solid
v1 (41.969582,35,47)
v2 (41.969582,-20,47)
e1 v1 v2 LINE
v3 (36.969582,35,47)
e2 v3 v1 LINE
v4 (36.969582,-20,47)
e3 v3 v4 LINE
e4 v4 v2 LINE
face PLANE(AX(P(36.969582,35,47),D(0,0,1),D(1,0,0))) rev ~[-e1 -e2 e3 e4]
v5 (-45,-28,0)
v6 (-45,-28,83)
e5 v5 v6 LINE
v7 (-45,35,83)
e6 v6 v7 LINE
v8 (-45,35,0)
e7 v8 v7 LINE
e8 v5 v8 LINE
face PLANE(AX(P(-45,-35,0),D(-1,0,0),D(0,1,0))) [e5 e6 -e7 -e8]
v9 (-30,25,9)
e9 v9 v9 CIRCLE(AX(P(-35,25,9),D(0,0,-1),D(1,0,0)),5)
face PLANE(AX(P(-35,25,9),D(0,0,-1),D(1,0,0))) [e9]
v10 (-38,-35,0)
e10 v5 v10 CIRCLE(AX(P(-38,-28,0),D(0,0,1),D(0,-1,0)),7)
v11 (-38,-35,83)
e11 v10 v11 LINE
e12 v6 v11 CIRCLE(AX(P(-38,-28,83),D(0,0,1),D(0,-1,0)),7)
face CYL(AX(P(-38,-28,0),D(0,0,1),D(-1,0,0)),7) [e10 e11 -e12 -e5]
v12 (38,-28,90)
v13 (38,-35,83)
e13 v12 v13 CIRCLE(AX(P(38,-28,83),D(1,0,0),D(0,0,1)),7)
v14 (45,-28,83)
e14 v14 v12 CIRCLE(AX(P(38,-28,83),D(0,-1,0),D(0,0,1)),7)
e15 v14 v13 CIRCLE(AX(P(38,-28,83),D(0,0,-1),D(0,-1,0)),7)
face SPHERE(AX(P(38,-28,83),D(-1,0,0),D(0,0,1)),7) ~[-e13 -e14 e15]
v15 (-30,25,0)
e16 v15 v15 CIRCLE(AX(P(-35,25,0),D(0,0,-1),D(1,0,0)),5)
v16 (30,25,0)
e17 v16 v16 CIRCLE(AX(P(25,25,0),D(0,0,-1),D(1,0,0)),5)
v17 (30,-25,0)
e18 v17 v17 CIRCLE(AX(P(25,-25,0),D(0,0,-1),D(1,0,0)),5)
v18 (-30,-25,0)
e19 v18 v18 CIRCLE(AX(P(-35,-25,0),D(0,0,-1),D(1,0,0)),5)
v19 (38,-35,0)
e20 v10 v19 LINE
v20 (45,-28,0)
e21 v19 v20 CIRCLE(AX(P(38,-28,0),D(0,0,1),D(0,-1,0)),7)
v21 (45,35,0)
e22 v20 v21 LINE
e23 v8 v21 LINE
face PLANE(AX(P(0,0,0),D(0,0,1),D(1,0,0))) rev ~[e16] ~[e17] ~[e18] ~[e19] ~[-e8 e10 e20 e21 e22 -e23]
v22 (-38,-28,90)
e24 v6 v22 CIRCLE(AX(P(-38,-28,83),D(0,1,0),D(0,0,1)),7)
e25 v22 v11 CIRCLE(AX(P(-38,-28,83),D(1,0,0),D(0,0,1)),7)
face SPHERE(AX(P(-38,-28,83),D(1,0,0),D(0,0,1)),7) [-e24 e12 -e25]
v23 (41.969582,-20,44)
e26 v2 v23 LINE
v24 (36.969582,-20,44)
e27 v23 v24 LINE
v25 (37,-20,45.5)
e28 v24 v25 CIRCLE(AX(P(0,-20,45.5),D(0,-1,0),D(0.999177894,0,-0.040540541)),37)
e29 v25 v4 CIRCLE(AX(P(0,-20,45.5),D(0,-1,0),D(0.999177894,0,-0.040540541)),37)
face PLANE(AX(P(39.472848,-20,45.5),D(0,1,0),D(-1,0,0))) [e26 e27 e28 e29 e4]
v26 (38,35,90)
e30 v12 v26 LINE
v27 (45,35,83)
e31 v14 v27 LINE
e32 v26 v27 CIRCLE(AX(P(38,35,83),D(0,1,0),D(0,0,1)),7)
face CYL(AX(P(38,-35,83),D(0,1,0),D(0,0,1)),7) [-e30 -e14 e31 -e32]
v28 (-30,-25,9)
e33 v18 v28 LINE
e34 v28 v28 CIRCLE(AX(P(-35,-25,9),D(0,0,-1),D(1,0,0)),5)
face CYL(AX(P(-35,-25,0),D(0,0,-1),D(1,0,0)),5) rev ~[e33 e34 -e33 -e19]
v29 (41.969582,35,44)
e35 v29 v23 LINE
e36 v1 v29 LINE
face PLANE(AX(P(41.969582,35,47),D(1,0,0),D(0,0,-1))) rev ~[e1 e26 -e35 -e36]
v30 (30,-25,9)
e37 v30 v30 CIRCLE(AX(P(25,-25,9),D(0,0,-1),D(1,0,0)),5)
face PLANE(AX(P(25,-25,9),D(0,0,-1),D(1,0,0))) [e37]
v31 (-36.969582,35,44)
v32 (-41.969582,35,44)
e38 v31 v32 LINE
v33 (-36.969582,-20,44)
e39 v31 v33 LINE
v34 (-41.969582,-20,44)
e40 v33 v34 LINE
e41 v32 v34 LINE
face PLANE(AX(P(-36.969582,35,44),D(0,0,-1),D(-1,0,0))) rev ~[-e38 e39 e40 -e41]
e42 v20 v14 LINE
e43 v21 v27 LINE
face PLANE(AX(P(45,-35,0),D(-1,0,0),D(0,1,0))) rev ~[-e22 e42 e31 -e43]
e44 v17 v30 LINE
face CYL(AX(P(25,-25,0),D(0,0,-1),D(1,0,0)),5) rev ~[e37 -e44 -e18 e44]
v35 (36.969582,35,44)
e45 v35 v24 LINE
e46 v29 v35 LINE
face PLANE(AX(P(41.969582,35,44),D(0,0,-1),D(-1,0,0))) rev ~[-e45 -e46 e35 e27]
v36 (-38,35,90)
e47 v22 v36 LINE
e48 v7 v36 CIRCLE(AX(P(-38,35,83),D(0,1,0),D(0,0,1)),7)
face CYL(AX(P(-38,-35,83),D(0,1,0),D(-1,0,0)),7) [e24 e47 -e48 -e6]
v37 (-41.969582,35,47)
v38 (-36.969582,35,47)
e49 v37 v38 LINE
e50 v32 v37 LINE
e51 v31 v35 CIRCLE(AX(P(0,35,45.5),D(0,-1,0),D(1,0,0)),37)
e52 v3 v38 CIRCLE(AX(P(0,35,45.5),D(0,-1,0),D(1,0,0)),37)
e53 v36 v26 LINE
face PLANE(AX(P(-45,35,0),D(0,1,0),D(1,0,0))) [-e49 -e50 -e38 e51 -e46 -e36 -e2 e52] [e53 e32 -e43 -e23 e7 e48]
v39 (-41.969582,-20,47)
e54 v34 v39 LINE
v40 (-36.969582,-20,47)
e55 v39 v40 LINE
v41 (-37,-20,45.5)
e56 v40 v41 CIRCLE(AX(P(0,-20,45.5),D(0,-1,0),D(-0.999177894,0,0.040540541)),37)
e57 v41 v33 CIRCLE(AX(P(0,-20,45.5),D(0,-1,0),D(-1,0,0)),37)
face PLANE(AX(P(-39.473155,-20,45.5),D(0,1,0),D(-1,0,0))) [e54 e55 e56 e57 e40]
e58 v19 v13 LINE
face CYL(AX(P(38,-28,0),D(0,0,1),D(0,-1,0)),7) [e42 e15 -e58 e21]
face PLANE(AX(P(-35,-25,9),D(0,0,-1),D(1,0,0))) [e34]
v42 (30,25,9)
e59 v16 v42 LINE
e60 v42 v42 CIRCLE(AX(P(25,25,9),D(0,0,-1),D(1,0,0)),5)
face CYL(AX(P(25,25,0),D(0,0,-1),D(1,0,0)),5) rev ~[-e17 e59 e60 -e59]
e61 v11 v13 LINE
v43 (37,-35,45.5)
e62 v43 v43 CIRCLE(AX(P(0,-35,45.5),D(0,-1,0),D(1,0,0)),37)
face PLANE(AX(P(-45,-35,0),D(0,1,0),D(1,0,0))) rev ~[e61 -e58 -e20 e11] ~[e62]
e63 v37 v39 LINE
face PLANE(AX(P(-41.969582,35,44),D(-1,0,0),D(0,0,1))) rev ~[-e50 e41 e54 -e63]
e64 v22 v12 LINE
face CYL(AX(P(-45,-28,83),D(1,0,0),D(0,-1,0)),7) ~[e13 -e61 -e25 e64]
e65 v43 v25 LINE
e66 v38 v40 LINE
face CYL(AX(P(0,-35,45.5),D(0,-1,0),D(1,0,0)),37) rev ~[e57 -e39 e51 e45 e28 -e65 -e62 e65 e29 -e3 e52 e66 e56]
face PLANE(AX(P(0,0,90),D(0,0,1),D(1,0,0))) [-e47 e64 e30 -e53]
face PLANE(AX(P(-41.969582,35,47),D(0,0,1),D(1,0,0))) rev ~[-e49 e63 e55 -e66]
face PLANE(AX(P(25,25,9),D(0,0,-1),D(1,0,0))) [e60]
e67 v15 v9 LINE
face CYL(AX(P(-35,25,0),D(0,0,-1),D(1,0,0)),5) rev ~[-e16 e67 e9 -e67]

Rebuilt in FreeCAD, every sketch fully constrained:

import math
import FreeCAD as App
import Part
import Sketcher


def edges_at(feature, points):
    """Names of the edges that pass closest to the given points."""
    edges = feature.Shape.Edges
    near = lambda p: min(range(len(edges)), key=lambda i: edges[i].distToShape(Part.Vertex(*p))[0])
    return sorted({f"Edge{near(p) + 1}" for p in points})

doc = App.newDocument("Part")
body = doc.addObject("PartDesign::Body", "Body")

sketch1 = body.newObject("Sketcher::SketchObject", "Sketch")
sketch1.AttachmentSupport = (doc.getObject("XY_Plane"), [""])
sketch1.MapMode = "FlatFace"
sketch1.addGeometry(Part.LineSegment(App.Vector(-45, 35, 0), App.Vector(-45, -35, 0)), False)
sketch1.addGeometry(Part.LineSegment(App.Vector(-45, -35, 0), App.Vector(45, -35, 0)), False)
sketch1.addGeometry(Part.LineSegment(App.Vector(45, -35, 0), App.Vector(45, 35, 0)), False)
sketch1.addGeometry(Part.LineSegment(App.Vector(45, 35, 0), App.Vector(-45, 35, 0)), False)
sketch1.addConstraint(Sketcher.Constraint("Coincident", 0, 2, 1, 1))
sketch1.addConstraint(Sketcher.Constraint("Coincident", 1, 2, 2, 1))
sketch1.addConstraint(Sketcher.Constraint("Coincident", 2, 2, 3, 1))
sketch1.addConstraint(Sketcher.Constraint("Coincident", 3, 2, 0, 1))
sketch1.addConstraint(Sketcher.Constraint("Vertical", 0))
sketch1.addConstraint(Sketcher.Constraint("Horizontal", 1))
sketch1.addConstraint(Sketcher.Constraint("Vertical", 2))
sketch1.addConstraint(Sketcher.Constraint("Horizontal", 3))
sketch1.addConstraint(Sketcher.Constraint("Symmetric", 0, 2, 2, 2, -1, 1))
sketch1.addConstraint(Sketcher.Constraint("DistanceX", 1, 1, 1, 2, 90.0))
sketch1.addConstraint(Sketcher.Constraint("DistanceY", 0, 2, 0, 1, 70.0))
pad1 = body.newObject("PartDesign::Pad", "Pad")
pad1.Profile = sketch1
pad1.Length = 90

sketch2 = body.newObject("Sketcher::SketchObject", "Sketch001")
sketch2.AttachmentSupport = (doc.getObject("XZ_Plane"), [""])
sketch2.MapMode = "FlatFace"
sketch2.AttachmentOffset = App.Placement(App.Vector(0, 0, 35), App.Rotation())
sketch2.addGeometry(Part.Circle(App.Vector(0, 45.5, 0), App.Vector(0, 0, 1), 37), False)
sketch2.addConstraint(Sketcher.Constraint("PointOnObject", 0, 3, -2))
sketch2.addConstraint(Sketcher.Constraint("Diameter", 0, 74.0))
sketch2.addConstraint(Sketcher.Constraint("DistanceY", -1, 1, 0, 3, 45.5))
pocket1 = body.newObject("PartDesign::Pocket", "Pocket")
pocket1.Profile = sketch2
pocket1.Length = 70

sketch3 = body.newObject("Sketcher::SketchObject", "Sketch002")
sketch3.AttachmentSupport = (doc.getObject("XY_Plane"), [""])
sketch3.MapMode = "FlatFace"
sketch3.addGeometry(Part.Circle(App.Vector(-35, -25, 0), App.Vector(0, 0, 1), 5), False)
sketch3.addGeometry(Part.Circle(App.Vector(-35, 25, 0), App.Vector(0, 0, 1), 5), False)
sketch3.addGeometry(Part.Circle(App.Vector(25, -25, 0), App.Vector(0, 0, 1), 5), False)
sketch3.addGeometry(Part.Circle(App.Vector(25, 25, 0), App.Vector(0, 0, 1), 5), False)
sketch3.addConstraint(Sketcher.Constraint("Equal", 0, 1))
sketch3.addConstraint(Sketcher.Constraint("Equal", 1, 2))
sketch3.addConstraint(Sketcher.Constraint("Equal", 2, 3))
sketch3.addConstraint(Sketcher.Constraint("Symmetric", 0, 3, 1, 3, -1))
sketch3.addConstraint(Sketcher.Constraint("Symmetric", 2, 3, 3, 3, -1))
sketch3.addConstraint(Sketcher.Constraint("Horizontal", 0, 3, 2, 3))
sketch3.addConstraint(Sketcher.Constraint("Diameter", 0, 10.0))
sketch3.addConstraint(Sketcher.Constraint("DistanceX", 0, 3, -1, 1, 35.0))
sketch3.addConstraint(Sketcher.Constraint("DistanceY", 0, 3, -1, 1, 25.0))
sketch3.addConstraint(Sketcher.Constraint("DistanceX", -1, 1, 2, 3, 25.0))
pocket2 = body.newObject("PartDesign::Pocket", "Pocket001")
pocket2.Profile = sketch3
pocket2.Length = 9
pocket2.Reversed = True
doc.recompute()

fillet = body.newObject("PartDesign::Fillet", "Fillet")
fillet.Base = (pocket2, edges_at(pocket2, [
    (0, -35, 90),
    (45, 0, 90),
    (-45, 0, 90),
    (45, -35, 45),
    (-45, -35, 45),
]))
fillet.Radius = 7

sketch4 = body.newObject("Sketcher::SketchObject", "Sketch003")
sketch4.AttachmentSupport = (doc.getObject("XZ_Plane"), [""])
sketch4.MapMode = "FlatFace"
sketch4.AttachmentOffset = App.Placement(App.Vector(0, 0, -35), App.Rotation())
sketch4.addGeometry(Part.ArcOfCircle(Part.Circle(App.Vector(0, 45.5, 0), App.Vector(0, 0, 1), 37), math.radians(-2.323439), math.radians(2.323439)), False)
sketch4.addGeometry(Part.LineSegment(App.Vector(36.969582, 47, 0), App.Vector(41.969582, 47, 0)), False)
sketch4.addGeometry(Part.LineSegment(App.Vector(41.969582, 47, 0), App.Vector(41.969582, 44, 0)), False)
sketch4.addGeometry(Part.LineSegment(App.Vector(41.969582, 44, 0), App.Vector(36.969582, 44, 0)), False)
sketch4.addGeometry(Part.LineSegment(App.Vector(-41.969582, 47, 0), App.Vector(-36.969582, 47, 0)), False)
sketch4.addGeometry(Part.ArcOfCircle(Part.Circle(App.Vector(0, 45.5, 0), App.Vector(0, 0, 1), 37), math.radians(177.676561), math.radians(180)), False)
sketch4.addGeometry(Part.ArcOfCircle(Part.Circle(App.Vector(0, 45.5, 0), App.Vector(0, 0, 1), 37), math.radians(180), math.radians(182.323439)), False)
sketch4.addGeometry(Part.LineSegment(App.Vector(-36.969582, 44, 0), App.Vector(-41.969582, 44, 0)), False)
sketch4.addGeometry(Part.LineSegment(App.Vector(-41.969582, 44, 0), App.Vector(-41.969582, 47, 0)), False)
sketch4.addConstraint(Sketcher.Constraint("Coincident", 0, 2, 1, 1))
sketch4.addConstraint(Sketcher.Constraint("Coincident", 1, 2, 2, 1))
sketch4.addConstraint(Sketcher.Constraint("Coincident", 2, 2, 3, 1))
sketch4.addConstraint(Sketcher.Constraint("Coincident", 3, 2, 0, 1))
sketch4.addConstraint(Sketcher.Constraint("Coincident", 4, 2, 5, 1))
sketch4.addConstraint(Sketcher.Constraint("Tangent", 5, 2, 6, 1))
sketch4.addConstraint(Sketcher.Constraint("Coincident", 6, 2, 7, 1))
sketch4.addConstraint(Sketcher.Constraint("Coincident", 7, 2, 8, 1))
sketch4.addConstraint(Sketcher.Constraint("Coincident", 8, 2, 4, 1))
sketch4.addConstraint(Sketcher.Constraint("Horizontal", 1))
sketch4.addConstraint(Sketcher.Constraint("Vertical", 2))
sketch4.addConstraint(Sketcher.Constraint("Horizontal", 3))
sketch4.addConstraint(Sketcher.Constraint("Horizontal", 4))
sketch4.addConstraint(Sketcher.Constraint("Horizontal", 7))
sketch4.addConstraint(Sketcher.Constraint("Vertical", 8))
sketch4.addConstraint(Sketcher.Constraint("Coincident", 5, 3, 0, 3))
sketch4.addConstraint(Sketcher.Constraint("Equal", 0, 5))
sketch4.addConstraint(Sketcher.Constraint("Equal", 5, 6))
sketch4.addConstraint(Sketcher.Constraint("Symmetric", 0, 2, 4, 2, -2))
sketch4.addConstraint(Sketcher.Constraint("Symmetric", 2, 2, 7, 2, -2))
sketch4.addConstraint(Sketcher.Constraint("Horizontal", 6, 3, 5, 2))
sketch4.addConstraint(Sketcher.Constraint("Vertical", 0, 2, 3, 2))
sketch4.addConstraint(Sketcher.Constraint("Radius", 0, 37.0))
sketch4.addConstraint(Sketcher.Constraint("DistanceX", 1, 1, 1, 2, 5.0))
sketch4.addConstraint(Sketcher.Constraint("DistanceY", 2, 2, 2, 1, 3.0))
sketch4.addConstraint(Sketcher.Constraint("DistanceY", -1, 1, 0, 2, 47.0))
pocket3 = body.newObject("PartDesign::Pocket", "Pocket002")
pocket3.Profile = sketch4
pocket3.Length = 55
pocket3.Reversed = True

doc.recompute()
